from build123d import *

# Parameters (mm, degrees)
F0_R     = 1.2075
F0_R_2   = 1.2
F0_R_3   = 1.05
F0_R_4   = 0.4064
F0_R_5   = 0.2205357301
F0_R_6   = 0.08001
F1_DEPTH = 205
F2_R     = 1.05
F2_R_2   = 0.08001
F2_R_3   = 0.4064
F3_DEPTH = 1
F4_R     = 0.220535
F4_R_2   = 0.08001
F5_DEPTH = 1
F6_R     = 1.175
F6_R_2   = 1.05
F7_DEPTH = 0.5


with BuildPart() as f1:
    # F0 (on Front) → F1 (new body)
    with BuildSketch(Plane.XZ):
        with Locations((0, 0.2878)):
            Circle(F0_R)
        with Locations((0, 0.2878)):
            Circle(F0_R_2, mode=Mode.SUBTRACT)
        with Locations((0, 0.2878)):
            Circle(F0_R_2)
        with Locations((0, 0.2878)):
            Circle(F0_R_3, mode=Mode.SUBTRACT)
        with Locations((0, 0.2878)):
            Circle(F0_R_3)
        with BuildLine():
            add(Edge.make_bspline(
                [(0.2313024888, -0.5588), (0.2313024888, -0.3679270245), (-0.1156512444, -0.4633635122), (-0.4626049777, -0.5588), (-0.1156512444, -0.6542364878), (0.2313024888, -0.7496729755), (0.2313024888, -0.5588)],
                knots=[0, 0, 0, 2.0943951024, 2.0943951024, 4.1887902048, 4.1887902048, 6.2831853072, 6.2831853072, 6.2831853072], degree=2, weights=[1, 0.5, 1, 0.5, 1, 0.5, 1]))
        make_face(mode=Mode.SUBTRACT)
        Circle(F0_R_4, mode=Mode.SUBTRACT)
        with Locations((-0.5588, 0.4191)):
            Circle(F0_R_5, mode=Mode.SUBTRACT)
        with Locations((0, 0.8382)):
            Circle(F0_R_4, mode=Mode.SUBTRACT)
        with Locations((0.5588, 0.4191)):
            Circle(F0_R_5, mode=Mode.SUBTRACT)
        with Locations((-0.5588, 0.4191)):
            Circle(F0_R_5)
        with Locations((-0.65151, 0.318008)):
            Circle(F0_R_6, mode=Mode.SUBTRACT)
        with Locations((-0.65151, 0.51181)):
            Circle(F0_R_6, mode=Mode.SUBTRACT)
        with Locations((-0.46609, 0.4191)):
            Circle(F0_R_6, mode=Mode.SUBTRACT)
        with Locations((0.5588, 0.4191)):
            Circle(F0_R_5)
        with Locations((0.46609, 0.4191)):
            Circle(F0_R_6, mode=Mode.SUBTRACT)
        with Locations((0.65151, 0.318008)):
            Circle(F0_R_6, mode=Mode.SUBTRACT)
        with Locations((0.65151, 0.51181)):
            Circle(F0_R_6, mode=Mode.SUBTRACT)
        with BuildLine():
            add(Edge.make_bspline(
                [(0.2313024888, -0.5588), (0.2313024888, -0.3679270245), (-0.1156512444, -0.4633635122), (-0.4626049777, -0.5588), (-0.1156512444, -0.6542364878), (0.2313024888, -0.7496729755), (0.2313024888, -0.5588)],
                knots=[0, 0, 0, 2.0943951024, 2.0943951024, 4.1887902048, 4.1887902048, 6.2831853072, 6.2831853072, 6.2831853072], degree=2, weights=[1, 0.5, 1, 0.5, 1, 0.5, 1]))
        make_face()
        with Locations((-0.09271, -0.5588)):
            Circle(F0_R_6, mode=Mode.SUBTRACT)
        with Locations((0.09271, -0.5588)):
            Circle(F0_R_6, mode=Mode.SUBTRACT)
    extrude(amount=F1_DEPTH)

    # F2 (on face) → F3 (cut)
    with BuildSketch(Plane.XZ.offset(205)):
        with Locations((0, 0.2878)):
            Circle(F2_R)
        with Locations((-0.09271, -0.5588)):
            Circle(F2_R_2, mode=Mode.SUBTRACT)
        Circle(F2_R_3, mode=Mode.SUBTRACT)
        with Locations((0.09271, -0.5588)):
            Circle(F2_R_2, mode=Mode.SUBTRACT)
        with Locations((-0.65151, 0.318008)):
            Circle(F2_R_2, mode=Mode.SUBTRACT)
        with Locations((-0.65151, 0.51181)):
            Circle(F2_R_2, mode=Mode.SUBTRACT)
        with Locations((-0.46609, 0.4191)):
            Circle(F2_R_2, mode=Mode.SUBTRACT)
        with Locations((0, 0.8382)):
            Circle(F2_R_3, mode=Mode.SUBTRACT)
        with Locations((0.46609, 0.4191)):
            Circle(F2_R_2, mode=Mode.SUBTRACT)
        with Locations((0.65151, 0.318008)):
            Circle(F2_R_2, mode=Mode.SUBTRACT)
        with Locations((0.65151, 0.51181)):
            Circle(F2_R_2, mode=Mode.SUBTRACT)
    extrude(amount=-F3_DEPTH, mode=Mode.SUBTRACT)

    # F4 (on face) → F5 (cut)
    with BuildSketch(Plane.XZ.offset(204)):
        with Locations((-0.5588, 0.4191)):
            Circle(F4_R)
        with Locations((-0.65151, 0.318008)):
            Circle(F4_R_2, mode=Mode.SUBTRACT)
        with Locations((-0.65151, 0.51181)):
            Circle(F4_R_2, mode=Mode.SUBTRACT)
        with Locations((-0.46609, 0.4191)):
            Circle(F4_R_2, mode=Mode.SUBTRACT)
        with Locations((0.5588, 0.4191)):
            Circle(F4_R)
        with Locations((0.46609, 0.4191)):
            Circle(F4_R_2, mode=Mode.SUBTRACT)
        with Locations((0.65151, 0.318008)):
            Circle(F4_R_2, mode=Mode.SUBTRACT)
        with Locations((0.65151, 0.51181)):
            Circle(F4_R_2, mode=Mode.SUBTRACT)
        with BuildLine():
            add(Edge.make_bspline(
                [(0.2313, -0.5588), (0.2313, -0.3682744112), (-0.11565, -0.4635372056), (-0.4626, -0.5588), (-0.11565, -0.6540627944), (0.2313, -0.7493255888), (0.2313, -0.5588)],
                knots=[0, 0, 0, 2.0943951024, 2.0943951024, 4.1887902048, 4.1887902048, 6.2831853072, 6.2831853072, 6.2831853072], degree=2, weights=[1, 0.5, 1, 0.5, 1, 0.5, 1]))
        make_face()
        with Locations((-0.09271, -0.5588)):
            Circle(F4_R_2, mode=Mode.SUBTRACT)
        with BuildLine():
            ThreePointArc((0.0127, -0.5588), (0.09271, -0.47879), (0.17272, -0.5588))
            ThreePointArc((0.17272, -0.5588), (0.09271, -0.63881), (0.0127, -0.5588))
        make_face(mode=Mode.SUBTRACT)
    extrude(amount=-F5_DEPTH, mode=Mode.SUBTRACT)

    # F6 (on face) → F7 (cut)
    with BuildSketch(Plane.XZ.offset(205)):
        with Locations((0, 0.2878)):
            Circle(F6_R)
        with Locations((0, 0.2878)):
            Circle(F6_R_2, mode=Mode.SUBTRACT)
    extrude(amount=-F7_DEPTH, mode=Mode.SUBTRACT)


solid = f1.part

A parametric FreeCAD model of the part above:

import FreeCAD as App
import Part
import Sketcher

V = App.Vector

doc = App.newDocument("Part")
body = doc.addObject("PartDesign::Body", "Body")

# Sketch on XZ plane
sketch1 = body.newObject("Sketcher::SketchObject", "Sketch")
sketch1.AttachmentSupport = (doc.getObject("XZ_Plane"), [""])
sketch1.MapMode = "FlatFace"
sketch1.addGeometry(Part.Circle(V(0, 0.29, 0), V(0, 0, 1), 1.21), False)
sketch1.addGeometry(Part.Circle(V(-0.09, -0.56, 0), V(0, 0, 1), 0.08), False)
sketch1.addGeometry(Part.Circle(V(0, 0, 0), V(0, 0, 1), 0.41), False)
sketch1.addGeometry(Part.Circle(V(0.09, -0.56, 0), V(0, 0, 1), 0.08), False)
sketch1.addGeometry(Part.Circle(V(-0.65, 0.32, 0), V(0, 0, 1), 0.08), False)
sketch1.addGeometry(Part.Circle(V(-0.65, 0.51, 0), V(0, 0, 1), 0.08), False)
sketch1.addGeometry(Part.Circle(V(-0.47, 0.42, 0), V(0, 0, 1), 0.08), False)
sketch1.addGeometry(Part.Circle(V(0, 0.84, 0), V(0, 0, 1), 0.41), False)
sketch1.addGeometry(Part.Circle(V(0.47, 0.42, 0), V(0, 0, 1), 0.08), False)
sketch1.addGeometry(Part.Circle(V(0.65, 0.32, 0), V(0, 0, 1), 0.08), False)
sketch1.addGeometry(Part.Circle(V(0.65, 0.51, 0), V(0, 0, 1), 0.08), False)
sketch1.addConstraint(Sketcher.Constraint("Coincident", 2, 3, -1, 1))
sketch1.addConstraint(Sketcher.Constraint("Equal", 1, 3))
sketch1.addConstraint(Sketcher.Constraint("Equal", 3, 4))
sketch1.addConstraint(Sketcher.Constraint("Equal", 4, 5))
sketch1.addConstraint(Sketcher.Constraint("Equal", 5, 6))
sketch1.addConstraint(Sketcher.Constraint("Equal", 2, 7))
sketch1.addConstraint(Sketcher.Constraint("Equal", 6, 8))
sketch1.addConstraint(Sketcher.Constraint("Equal", 8, 9))
sketch1.addConstraint(Sketcher.Constraint("Equal", 9, 10))
sketch1.addConstraint(Sketcher.Constraint("Symmetric", 1, 3, 3, 3, -2))
sketch1.addConstraint(Sketcher.Constraint("Symmetric", 6, 3, 8, 3, -2))
sketch1.addConstraint(Sketcher.Constraint("Symmetric", 4, 3, 9, 3, -2))
sketch1.addConstraint(Sketcher.Constraint("Symmetric", 5, 3, 10, 3, -2))
sketch1.addConstraint(Sketcher.Constraint("PointOnObject", 0, 3, -2))
sketch1.addConstraint(Sketcher.Constraint("PointOnObject", 7, 3, -2))
sketch1.addConstraint(Sketcher.Constraint("Vertical", 4, 3, 5, 3))
sketch1.addConstraint(Sketcher.Constraint("Diameter", 0, 2.415))
sketch1.addConstraint(Sketcher.Constraint("Diameter", 2, 0.8128))
sketch1.addConstraint(Sketcher.Constraint("Diameter", 1, 0.16002))
sketch1.addConstraint(Sketcher.Constraint("DistanceY", -1, 1, 0, 3, 0.2878))
sketch1.addConstraint(Sketcher.Constraint("DistanceY", 1, 3, -1, 1, 0.5588))
sketch1.addConstraint(Sketcher.Constraint("DistanceY", -1, 1, 6, 3, 0.4191))
sketch1.addConstraint(Sketcher.Constraint("DistanceY", -1, 1, 7, 3, 0.8382))
sketch1.addConstraint(Sketcher.Constraint("DistanceX", 4, 3, 1, 3, 0.5588))
sketch1.addConstraint(Sketcher.Constraint("DistanceY", 4, 3, 5, 3, 0.193802))
sketch1.addConstraint(Sketcher.Constraint("DistanceX", 1, 3, -1, 1, 0.09271))
sketch1.addConstraint(Sketcher.Constraint("DistanceY", -1, 1, 5, 3, 0.51181))
sketch1.addConstraint(Sketcher.Constraint("DistanceX", 6, 3, -1, 1, 0.46609))
pad1 = body.newObject("PartDesign::Pad", "Pad")
pad1.Profile = sketch1
pad1.Length = 205

# Sketch on XZ plane
sketch2 = body.newObject("Sketcher::SketchObject", "Sketch001")
sketch2.AttachmentSupport = (doc.getObject("XZ_Plane"), [""])
sketch2.MapMode = "FlatFace"
sketch2.AttachmentOffset = App.Placement(V(0, 0, 205), App.Rotation())
sketch2.addGeometry(Part.Circle(V(0, 0.29, 0), V(0, 0, 1), 1.05), False)
sketch2.addGeometry(Part.Circle(V(-0.09, -0.56, 0), V(0, 0, 1), 0.08), False)
sketch2.addGeometry(Part.Circle(V(0, 0, 0), V(0, 0, 1), 0.41), False)
sketch2.addGeometry(Part.Circle(V(0.09, -0.56, 0), V(0, 0, 1), 0.08), False)
sketch2.addGeometry(Part.Circle(V(-0.65, 0.32, 0), V(0, 0, 1), 0.08), False)
sketch2.addGeometry(Part.Circle(V(-0.65, 0.51, 0), V(0, 0, 1), 0.08), False)
sketch2.addGeometry(Part.Circle(V(-0.47, 0.42, 0), V(0, 0, 1), 0.08), False)
sketch2.addGeometry(Part.Circle(V(0, 0.84, 0), V(0, 0, 1), 0.41), False)
sketch2.addGeometry(Part.Circle(V(0.47, 0.42, 0), V(0, 0, 1), 0.08), False)
sketch2.addGeometry(Part.Circle(V(0.65, 0.32, 0), V(0, 0, 1), 0.08), False)
sketch2.addGeometry(Part.Circle(V(0.65, 0.51, 0), V(0, 0, 1), 0.08), False)
sketch2.addConstraint(Sketcher.Constraint("Coincident", 2, 3, -1, 1))
sketch2.addConstraint(Sketcher.Constraint("Equal", 1, 3))
sketch2.addConstraint(Sketcher.Constraint("Equal", 3, 4))
sketch2.addConstraint(Sketcher.Constraint("Equal", 4, 5))
sketch2.addConstraint(Sketcher.Constraint("Equal", 5, 6))
sketch2.addConstraint(Sketcher.Constraint("Equal", 2, 7))
sketch2.addConstraint(Sketcher.Constraint("Equal", 6, 8))
sketch2.addConstraint(Sketcher.Constraint("Equal", 8, 9))
sketch2.addConstraint(Sketcher.Constraint("Equal", 9, 10))
sketch2.addConstraint(Sketcher.Constraint("Symmetric", 1, 3, 3, 3, -2))
sketch2.addConstraint(Sketcher.Constraint("Symmetric", 6, 3, 8, 3, -2))
sketch2.addConstraint(Sketcher.Constraint("Symmetric", 4, 3, 9, 3, -2))
sketch2.addConstraint(Sketcher.Constraint("Symmetric", 5, 3, 10, 3, -2))
sketch2.addConstraint(Sketcher.Constraint("PointOnObject", 0, 3, -2))
sketch2.addConstraint(Sketcher.Constraint("PointOnObject", 7, 3, -2))
sketch2.addConstraint(Sketcher.Constraint("Vertical", 4, 3, 5, 3))
sketch2.addConstraint(Sketcher.Constraint("Diameter", 0, 2.1))
sketch2.addConstraint(Sketcher.Constraint("Diameter", 2, 0.8128))
sketch2.addConstraint(Sketcher.Constraint("Diameter", 1, 0.16002))
sketch2.addConstraint(Sketcher.Constraint("DistanceY", -1, 1, 0, 3, 0.2878))
sketch2.addConstraint(Sketcher.Constraint("DistanceY", 1, 3, -1, 1, 0.5588))
sketch2.addConstraint(Sketcher.Constraint("DistanceY", -1, 1, 6, 3, 0.4191))
sketch2.addConstraint(Sketcher.Constraint("DistanceY", -1, 1, 7, 3, 0.8382))
sketch2.addConstraint(Sketcher.Constraint("DistanceX", 4, 3, 1, 3, 0.5588))
sketch2.addConstraint(Sketcher.Constraint("DistanceY", 4, 3, 5, 3, 0.193802))
sketch2.addConstraint(Sketcher.Constraint("DistanceX", 1, 3, -1, 1, 0.09271))
sketch2.addConstraint(Sketcher.Constraint("DistanceY", -1, 1, 5, 3, 0.51181))
sketch2.addConstraint(Sketcher.Constraint("DistanceX", 6, 3, -1, 1, 0.46609))
pocket1 = body.newObject("PartDesign::Pocket", "Pocket")
pocket1.Profile = sketch2
pocket1.Length = 1

# Sketch on XZ plane
sketch3 = body.newObject("Sketcher::SketchObject", "Sketch002")
sketch3.AttachmentSupport = (doc.getObject("XZ_Plane"), [""])
sketch3.MapMode = "FlatFace"
sketch3.AttachmentOffset = App.Placement(V(0, 0, 204), App.Rotation())
sketch3.addGeometry(Part.Circle(V(-0.5588, 0.4191, 0), V(0, 0, 1), 0.220535), False)
sketch3.addGeometry(Part.Circle(V(-0.65151, 0.318008, 0), V(0, 0, 1), 0.08001), False)
sketch3.addGeometry(Part.Circle(V(-0.65151, 0.51181, 0), V(0, 0, 1), 0.08001), False)
sketch3.addGeometry(Part.Circle(V(-0.46609, 0.4191, 0), V(0, 0, 1), 0.08001), False)
sketch3.addGeometry(Part.Circle(V(0.5588, 0.4191, 0), V(0, 0, 1), 0.220535), False)
sketch3.addGeometry(Part.Circle(V(0.65151, 0.318008, 0), V(0, 0, 1), 0.08001), False)
sketch3.addGeometry(Part.Circle(V(0.46609, 0.4191, 0), V(0, 0, 1), 0.08001), False)
sketch3.addGeometry(Part.Circle(V(0.65151, 0.51181, 0), V(0, 0, 1), 0.08001), False)
sketch3.addGeometry(Part.BSplineCurve([V(0.2313, -0.5588, 0), V(0.2313, -0.368274, 0), V(-0.11565, -0.463537, 0), V(-0.4626, -0.5588, 0), V(-0.11565, -0.654063, 0), V(0.2313, -0.749326, 0), V(0.2313, -0.5588, 0)], [3, 2, 2, 3], [0, 2.094395102, 4.188790205, 6.283185307], False, 2, [1, 0.5, 1, 0.5, 1, 0.5, 1], False), False)
sketch3.addGeometry(Part.Circle(V(0.09271, -0.5588, 0), V(0, 0, 1), 0.08001), False)
sketch3.addGeometry(Part.Circle(V(-0.09271, -0.5588, 0), V(0, 0, 1), 0.08001), False)
sketch3.addConstraint(Sketcher.Constraint("Block", 8))
sketch3.addConstraint(Sketcher.Constraint("Equal", 1, 2))
sketch3.addConstraint(Sketcher.Constraint("Equal", 2, 3))
sketch3.addConstraint(Sketcher.Constraint("Equal", 0, 4))
sketch3.addConstraint(Sketcher.Constraint("Equal", 3, 5))
sketch3.addConstraint(Sketcher.Constraint("Equal", 5, 6))
sketch3.addConstraint(Sketcher.Constraint("Equal", 6, 7))
sketch3.addConstraint(Sketcher.Constraint("Equal", 7, 9))
sketch3.addConstraint(Sketcher.Constraint("Equal", 9, 10))
sketch3.addConstraint(Sketcher.Constraint("Symmetric", 0, 3, 4, 3, -2))
sketch3.addConstraint(Sketcher.Constraint("Symmetric", 1, 3, 5, 3, -2))
sketch3.addConstraint(Sketcher.Constraint("Symmetric", 3, 3, 6, 3, -2))
sketch3.addConstraint(Sketcher.Constraint("Symmetric", 2, 3, 7, 3, -2))
sketch3.addConstraint(Sketcher.Constraint("Symmetric", 9, 3, 10, 3, -2))
sketch3.addConstraint(Sketcher.Constraint("Horizontal", 0, 3, 3, 3))
sketch3.addConstraint(Sketcher.Constraint("Vertical", 1, 3, 2, 3))
sketch3.addConstraint(Sketcher.Constraint("Diameter", 0, 0.44107))
sketch3.addConstraint(Sketcher.Constraint("Diameter", 1, 0.16002))
sketch3.addConstraint(Sketcher.Constraint("DistanceX", 0, 3, -1, 1, 0.5588))
sketch3.addConstraint(Sketcher.Constraint("DistanceY", -1, 1, 0, 3, 0.4191))
sketch3.addConstraint(Sketcher.Constraint("DistanceY", 9, 3, -1, 1, 0.5588))
sketch3.addConstraint(Sketcher.Constraint("DistanceY", 1, 3, 2, 3, 0.193802))
sketch3.addConstraint(Sketcher.Constraint("DistanceX", 3, 3, 5, 3, 1.1176))
sketch3.addConstraint(Sketcher.Constraint("DistanceX", 9, 3, 5, 3, 0.5588))
sketch3.addConstraint(Sketcher.Constraint("DistanceX", 1, 3, -1, 1, 0.65151))
sketch3.addConstraint(Sketcher.Constraint("DistanceY", -1, 1, 2, 3, 0.51181))
pocket2 = body.newObject("PartDesign::Pocket", "Pocket001")
pocket2.Profile = sketch3
pocket2.Length = 1

# Sketch on XZ plane
sketch4 = body.newObject("Sketcher::SketchObject", "Sketch003")
sketch4.AttachmentSupport = (doc.getObject("XZ_Plane"), [""])
sketch4.MapMode = "FlatFace"
sketch4.AttachmentOffset = App.Placement(V(0, 0, 205), App.Rotation())
sketch4.addGeometry(Part.Circle(V(0, 0.3, 0), V(0, 0, 1), 1.2), False)
sketch4.addGeometry(Part.Circle(V(0, 0.3, 0), V(0, 0, 1), 1.1), False)
sketch4.addConstraint(Sketcher.Constraint("Coincident", 1, 3, 0, 3))
sketch4.addConstraint(Sketcher.Constraint("PointOnObject", 0, 3, -2))
sketch4.addConstraint(Sketcher.Constraint("Diameter", 1, 2.1))
sketch4.addConstraint(Sketcher.Constraint("Diameter", 0, 2.35))
sketch4.addConstraint(Sketcher.Constraint("DistanceY", -1, 1, 0, 3, 0.2878))
pocket3 = body.newObject("PartDesign::Pocket", "Pocket002")
pocket3.Profile = sketch4
pocket3.Length = 0.5

doc.recompute()
